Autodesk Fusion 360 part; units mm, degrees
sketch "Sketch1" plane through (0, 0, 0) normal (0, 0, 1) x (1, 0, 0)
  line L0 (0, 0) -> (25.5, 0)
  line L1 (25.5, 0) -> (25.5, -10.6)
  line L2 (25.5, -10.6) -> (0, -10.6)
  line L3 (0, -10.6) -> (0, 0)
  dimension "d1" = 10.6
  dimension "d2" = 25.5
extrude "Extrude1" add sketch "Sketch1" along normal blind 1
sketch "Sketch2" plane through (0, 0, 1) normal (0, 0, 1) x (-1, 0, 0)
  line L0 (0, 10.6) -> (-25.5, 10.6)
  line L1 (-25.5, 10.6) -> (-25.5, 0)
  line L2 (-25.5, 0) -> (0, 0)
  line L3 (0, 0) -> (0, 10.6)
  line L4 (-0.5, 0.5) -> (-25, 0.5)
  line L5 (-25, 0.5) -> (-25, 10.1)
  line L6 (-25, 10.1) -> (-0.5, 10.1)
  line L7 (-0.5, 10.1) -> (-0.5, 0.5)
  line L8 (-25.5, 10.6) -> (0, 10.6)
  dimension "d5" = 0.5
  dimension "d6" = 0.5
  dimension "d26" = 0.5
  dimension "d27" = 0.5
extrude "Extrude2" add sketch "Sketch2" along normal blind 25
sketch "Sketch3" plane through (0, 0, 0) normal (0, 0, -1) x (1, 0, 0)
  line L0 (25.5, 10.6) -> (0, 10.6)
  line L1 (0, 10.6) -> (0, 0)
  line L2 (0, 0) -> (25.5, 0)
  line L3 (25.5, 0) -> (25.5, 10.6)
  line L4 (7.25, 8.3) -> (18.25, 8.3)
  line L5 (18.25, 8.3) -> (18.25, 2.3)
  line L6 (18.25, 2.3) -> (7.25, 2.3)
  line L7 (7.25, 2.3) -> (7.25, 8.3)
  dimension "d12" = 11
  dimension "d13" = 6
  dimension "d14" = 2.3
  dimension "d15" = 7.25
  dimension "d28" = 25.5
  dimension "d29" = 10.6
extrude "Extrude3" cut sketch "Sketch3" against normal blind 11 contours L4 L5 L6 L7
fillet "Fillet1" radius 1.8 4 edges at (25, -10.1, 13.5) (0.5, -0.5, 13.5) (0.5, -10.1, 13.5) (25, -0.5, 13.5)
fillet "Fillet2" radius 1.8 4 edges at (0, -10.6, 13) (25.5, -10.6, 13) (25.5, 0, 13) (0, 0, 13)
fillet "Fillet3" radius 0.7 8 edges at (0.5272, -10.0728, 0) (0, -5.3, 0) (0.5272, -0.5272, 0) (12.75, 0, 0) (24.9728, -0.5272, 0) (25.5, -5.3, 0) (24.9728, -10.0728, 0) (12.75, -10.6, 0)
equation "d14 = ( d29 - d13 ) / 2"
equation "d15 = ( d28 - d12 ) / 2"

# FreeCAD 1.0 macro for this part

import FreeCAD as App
import Part
import Sketcher

V = App.Vector
Q = App.Units.Quantity


def edges_at(feature, points):
    """Names of the edges that pass closest to the given points."""
    edges = feature.Shape.Edges
    near = lambda p: min(range(len(edges)), key=lambda i: edges[i].distToShape(Part.Vertex(*p))[0])
    return sorted({f"Edge{near(p) + 1}" for p in points})

doc = App.newDocument("Part")
body = doc.addObject("PartDesign::Body", "Body")

# Sketch on XY plane
sketch1 = body.newObject("Sketcher::SketchObject", "Sketch")
sketch1.AttachmentSupport = (doc.getObject("XY_Plane"), [""])
sketch1.MapMode = "FlatFace"
sketch1.addGeometry([
    Part.LineSegment(V(26, 0, 0), V(0, 0, 0)),
    Part.LineSegment(V(0, 0, 0), V(0, -11, 0)),
    Part.LineSegment(V(0, -11, 0), V(26, -11, 0)),
    Part.LineSegment(V(26, -11, 0), V(26, 0, 0)),
], False)
sketch1.addConstraint([
    Sketcher.Constraint("Coincident", 0, 2, 1, 1),
    Sketcher.Constraint("Coincident", 1, 2, 2, 1),
    Sketcher.Constraint("Coincident", 2, 2, 3, 1),
    Sketcher.Constraint("Coincident", 3, 2, 0, 1),
    Sketcher.Constraint("Horizontal", 0),
    Sketcher.Constraint("Vertical", 1),
    Sketcher.Constraint("Horizontal", 2),
    Sketcher.Constraint("Vertical", 3),
    Sketcher.Constraint("Coincident", 0, 2, -1, 1),
    Sketcher.Constraint("DistanceX", 0, 2, 0, 1, Q("25.5 mm")),
    Sketcher.Constraint("DistanceY", 1, 2, 1, 1, Q("10.6 mm")),
])
pad1 = body.newObject("PartDesign::Pad", "Pad")
pad1.Profile = sketch1
pad1.Length = 1

# Sketch on XY plane
sketch2 = body.newObject("Sketcher::SketchObject", "Sketch001")
sketch2.AttachmentSupport = (doc.getObject("XY_Plane"), [""])
sketch2.MapMode = "FlatFace"
sketch2.AttachmentOffset = App.Placement(V(0, 0, 1), App.Rotation())
sketch2.addGeometry([
    Part.LineSegment(V(0, 0, 0), V(0, -11, 0)),  # 0
    Part.LineSegment(V(0, -11, 0), V(26, -11, 0)),  # 1
    Part.LineSegment(V(26, -11, 0), V(26, 0, 0)),  # 2
    Part.LineSegment(V(26, 0, 0), V(0, 0, 0)),  # 3
    Part.LineSegment(V(0, -10, 0), V(0, 0, 0)),  # 4
    Part.LineSegment(V(0, 0, 0), V(25, 0, 0)),  # 5
    Part.LineSegment(V(25, 0, 0), V(25, -10, 0)),  # 6
    Part.LineSegment(V(25, -10, 0), V(0, -10, 0)),  # 7
], False)
sketch2.addConstraint([
    Sketcher.Constraint("Coincident", 0, 2, 1, 1),
    Sketcher.Constraint("Coincident", 1, 2, 2, 1),
    Sketcher.Constraint("Coincident", 2, 2, 3, 1),
    Sketcher.Constraint("Coincident", 3, 2, 0, 1),
    Sketcher.Constraint("Coincident", 4, 2, 5, 1),
    Sketcher.Constraint("Coincident", 5, 2, 6, 1),
    Sketcher.Constraint("Coincident", 6, 2, 7, 1),
    Sketcher.Constraint("Coincident", 7, 2, 4, 1),
    Sketcher.Constraint("Vertical", 0),
    Sketcher.Constraint("Horizontal", 1),
    Sketcher.Constraint("Vertical", 2),
    Sketcher.Constraint("Horizontal", 3),
    Sketcher.Constraint("Vertical", 4),
    Sketcher.Constraint("Horizontal", 5),
    Sketcher.Constraint("Vertical", 6),
    Sketcher.Constraint("Horizontal", 7),
    Sketcher.Constraint("Coincident", 3, 2, -1, 1),
    Sketcher.Constraint("DistanceX", -1, 1, 4, 2, Q("0.5 mm")),
    Sketcher.Constraint("DistanceY", 4, 2, -1, 1, Q("0.5 mm")),
    Sketcher.Constraint("DistanceX", 5, 2, 2, 2, Q("0.5 mm")),
    Sketcher.Constraint("DistanceY", 1, 2, 6, 2, Q("0.5 mm")),
    Sketcher.Constraint("DistanceX", 1, 1, 1, 2, Q("25.5 mm")),
    Sketcher.Constraint("DistanceY", 0, 2, 0, 1, Q("10.6 mm")),
])
pad2 = body.newObject("PartDesign::Pad", "Pad001")
pad2.Profile = sketch2
pad2.Length = 25

# Sketch on XY plane
sketch3 = body.newObject("Sketcher::SketchObject", "Sketch002")
sketch3.AttachmentSupport = (doc.getObject("XY_Plane"), [""])
sketch3.MapMode = "FlatFace"
sketch3.addGeometry([
    Part.LineSegment(V(18, -8, 0), V(7, -8, 0)),
    Part.LineSegment(V(7, -8, 0), V(7, -2, 0)),
    Part.LineSegment(V(7, -2, 0), V(18, -2, 0)),
    Part.LineSegment(V(18, -2, 0), V(18, -8, 0)),
], False)
sketch3.addConstraint([
    Sketcher.Constraint("Coincident", 0, 2, 1, 1),
    Sketcher.Constraint("Coincident", 1, 2, 2, 1),
    Sketcher.Constraint("Coincident", 2, 2, 3, 1),
    Sketcher.Constraint("Coincident", 3, 2, 0, 1),
    Sketcher.Constraint("Horizontal", 0),
    Sketcher.Constraint("Vertical", 1),
    Sketcher.Constraint("Horizontal", 2),
    Sketcher.Constraint("Vertical", 3),
    Sketcher.Constraint("DistanceX", 0, 2, 0, 1, Q("11 mm")),
    Sketcher.Constraint("DistanceY", 1, 1, 1, 2, Q("6 mm")),
    Sketcher.Constraint("DistanceY", 1, 2, -1, 1, Q("2.3 mm")),
    Sketcher.Constraint("DistanceX", -1, 1, 0, 2, Q("7.25 mm")),
])
pocket1 = body.newObject("PartDesign::Pocket", "Pocket")
pocket1.Profile = sketch3
pocket1.Length = 11
pocket1.Reversed = True
doc.recompute()

fillet = body.newObject("PartDesign::Fillet", "Fillet")
fillet.Base = (pocket1, edges_at(pocket1, [
    (25, -10.1, 13.5),
    (0.5, -0.5, 13.5),
    (0.5, -10.1, 13.5),
    (25, -0.5, 13.5),
]))
fillet.Radius = 1.8
doc.recompute()

fillet2 = body.newObject("PartDesign::Fillet", "Fillet001")
fillet2.Base = (fillet, edges_at(fillet, [
    (0, -10.6, 13),
    (25.5, -10.6, 13),
    (25.5, 0, 13),
    (0, 0, 13),
]))
fillet2.Radius = 1.8
doc.recompute()

fillet3 = body.newObject("PartDesign::Fillet", "Fillet002")
fillet3.Base = (fillet2, edges_at(fillet2, [
    (0.527, -10.073, 0),
    (0, -5.3, 0),
    (0.527, -0.527, 0),
    (12.75, 0, 0),
    (24.973, -0.527, 0),
    (25.5, -5.3, 0),
    (24.973, -10.073, 0),
    (12.75, -10.6, 0),
]))
fillet3.Radius = 0.7

doc.recompute()
